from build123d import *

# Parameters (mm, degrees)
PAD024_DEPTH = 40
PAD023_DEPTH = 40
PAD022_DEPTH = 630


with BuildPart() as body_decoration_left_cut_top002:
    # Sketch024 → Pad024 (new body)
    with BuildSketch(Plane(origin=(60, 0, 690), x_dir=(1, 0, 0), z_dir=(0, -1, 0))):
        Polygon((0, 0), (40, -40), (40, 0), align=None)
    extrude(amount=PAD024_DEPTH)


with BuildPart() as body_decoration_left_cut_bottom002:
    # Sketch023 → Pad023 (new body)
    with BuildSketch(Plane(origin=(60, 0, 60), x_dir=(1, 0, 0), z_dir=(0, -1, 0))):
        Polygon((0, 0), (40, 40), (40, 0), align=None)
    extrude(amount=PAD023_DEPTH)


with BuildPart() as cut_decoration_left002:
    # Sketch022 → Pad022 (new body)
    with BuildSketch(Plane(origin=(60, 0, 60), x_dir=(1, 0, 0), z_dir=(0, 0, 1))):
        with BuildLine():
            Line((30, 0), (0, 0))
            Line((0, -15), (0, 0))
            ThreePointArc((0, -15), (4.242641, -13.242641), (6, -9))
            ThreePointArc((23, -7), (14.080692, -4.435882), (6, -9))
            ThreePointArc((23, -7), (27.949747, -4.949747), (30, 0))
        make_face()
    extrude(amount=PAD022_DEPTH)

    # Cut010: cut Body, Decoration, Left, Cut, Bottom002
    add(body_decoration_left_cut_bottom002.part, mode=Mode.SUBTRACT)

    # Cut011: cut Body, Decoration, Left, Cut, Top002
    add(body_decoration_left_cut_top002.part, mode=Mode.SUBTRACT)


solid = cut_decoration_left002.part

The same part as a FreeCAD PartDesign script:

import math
import FreeCAD as App
import Part
import Sketcher
Q = App.Units.Quantity


def add_polygon(sketch, points):
    """Adds a closed chain of lines whose ends are joined by coincident constraints."""
    first, n = sketch.GeometryCount, len(points)
    for a, b in zip(points, points[1:] + points[:1]):
        sketch.addGeometry(Part.LineSegment(App.Vector(*a, 0), App.Vector(*b, 0)), False)
    for i in range(n):
        sketch.addConstraint(Sketcher.Constraint("Coincident", first + i, 2, first + (i + 1) % n, 1))

doc = App.newDocument("Part")
params = doc.addObject("Spreadsheet::Sheet", "Params")
for row, (alias, value) in enumerate([
    ("sketch1_width", "40 mm"),
    ("pad1_length", "40 mm"),
    ("sketch2_width", "40 mm"),
    ("pad2_length", "40 mm"),
    ("sketch3_radius", "5.999999 mm"),
    ("sketch3_radius2", "11.999999 mm"),
    ("sketch3_radius3", "7.000002 mm"),
    ("sketch3_width", "30 mm"),
    ("sketch3_height", "15 mm"),
    ("pad3_length", "630 mm"),
], start=1):
    params.set(f"A{row}", alias)
    params.set(f"B{row}", "=" + value)
    params.setAlias(f"B{row}", alias)

body = doc.addObject("PartDesign::Body", "Body")

# Sketch on XZ plane
sketch1 = doc.addObject("Sketcher::SketchObject", "Sketch")
body.addObject(sketch1)
sketch1.AttachmentSupport = (doc.XZ_Plane, [""])
sketch1.MapMode = "FlatFace"
add_polygon(sketch1, [(60, 690), (100, 650), (100, 690)])  # lines 0-2
sketch1.addConstraint([
    Sketcher.Constraint("Vertical", 1),
    Sketcher.Constraint("Horizontal", 2),
    Sketcher.Constraint("Equal", 2, 1),
    Sketcher.Constraint("DistanceX", 2, 2, 2, 1, Q("40 mm")),
    Sketcher.Constraint("DistanceX", -1, 1, 0, 2, Q("100 mm")),
    Sketcher.Constraint("DistanceY", -1, 1, 0, 2, Q("650 mm")),
])
sketch1.setExpression("Constraints[6]", "Params.sketch1_width")
pad1 = doc.addObject("PartDesign::Pad", "Pad")
body.addObject(pad1)
pad1.Profile = sketch1
pad1.setExpression("Length", "Params.pad1_length")
body2 = doc.addObject("PartDesign::Body", "Body001")

# Sketch on XZ plane
sketch2 = doc.addObject("Sketcher::SketchObject", "Sketch001")
body2.addObject(sketch2)
sketch2.AttachmentSupport = (doc.getObject("XZ_Plane001"), [""])
sketch2.MapMode = "FlatFace"
add_polygon(sketch2, [(100, 100), (60, 60), (100, 60)])  # lines 0-2
sketch2.addConstraint([
    Sketcher.Constraint("Horizontal", 1),
    Sketcher.Constraint("Vertical", 2),
    Sketcher.Constraint("Equal", 1, 2),
    Sketcher.Constraint("DistanceX", 1, 1, 1, 2, Q("40 mm")),
    Sketcher.Constraint("DistanceX", -1, 1, 0, 2, Q("60 mm")),
    Sketcher.Constraint("DistanceY", -1, 1, 0, 2, Q("60 mm")),
])
sketch2.setExpression("Constraints[6]", "Params.sketch2_width")
pad2 = doc.addObject("PartDesign::Pad", "Pad001")
body2.addObject(pad2)
pad2.Profile = sketch2
pad2.setExpression("Length", "Params.pad2_length")
body3 = doc.addObject("PartDesign::Body", "Body002")

# Sketch on XY plane
sketch3 = doc.addObject("Sketcher::SketchObject", "Sketch002")
body3.addObject(sketch3)
sketch3.AttachmentSupport = (doc.getObject("XY_Plane002"), [""])
sketch3.MapMode = "FlatFace"
sketch3.AttachmentOffset = App.Placement(App.Vector(0, 0, 60), App.Rotation())
sketch3.addGeometry([
    Part.LineSegment(App.Vector(90, 0, 0), App.Vector(60, 0, 0)),  # 0
    Part.LineSegment(App.Vector(60, 0, 0), App.Vector(60, -15, 0)),  # 1
    Part.ArcOfCircle(Part.Circle(App.Vector(60, -9, 0), App.Vector(0, 0, 1), 6), math.radians(-90), math.radians(0)),  # 2
    Part.ArcOfCircle(Part.Circle(App.Vector(75, -16, 0), App.Vector(0, 0, 1), 12), math.radians(51), math.radians(142)),  # 3
    Part.ArcOfCircle(Part.Circle(App.Vector(83, 0, 0), App.Vector(0, 0, 1), 7), math.radians(-90), math.radians(0)),  # 4
], False)
sketch3.addConstraint([
    Sketcher.Constraint("Coincident", 0, 2, 1, 1),
    Sketcher.Constraint("Coincident", 1, 2, 2, 1),
    Sketcher.Constraint("Coincident", 2, 2, 3, 2),
    Sketcher.Constraint("Coincident", 3, 1, 4, 1),
    Sketcher.Constraint("Coincident", 4, 2, 0, 1),
    Sketcher.Constraint("Horizontal", 0),
    Sketcher.Constraint("Vertical", 1),
    Sketcher.Constraint("PointOnObject", 4, 3, -1),
    Sketcher.Constraint("PointOnObject", 0, 2, -1),
    Sketcher.Constraint("Vertical", 2, 3, 0, 2),
    Sketcher.Constraint("Vertical", 4, 3, 3, 1),
    Sketcher.Constraint("Radius", 2, Q("5.999999 mm")),
    Sketcher.Constraint("Radius", 3, Q("11.999999 mm")),
    Sketcher.Constraint("Radius", 4, Q("7.000002 mm")),
    Sketcher.Constraint("DistanceX", 0, 2, 0, 1, Q("30 mm")),
    Sketcher.Constraint("DistanceY", 1, 2, 1, 1, Q("15 mm")),
    Sketcher.Constraint("DistanceX", -1, 1, 2, 3, Q("60.000001 mm")),
    Sketcher.Constraint("DistanceY", 2, 2, -1, 1, Q("9 mm")),
])
sketch3.setExpression("Constraints[11]", "Params.sketch3_radius")
sketch3.setExpression("Constraints[12]", "Params.sketch3_radius2")
sketch3.setExpression("Constraints[13]", "Params.sketch3_radius3")
sketch3.setExpression("Constraints[14]", "Params.sketch3_width")
sketch3.setExpression("Constraints[15]", "Params.sketch3_height")
pad3 = doc.addObject("PartDesign::Pad", "Pad002")
body3.addObject(pad3)
pad3.Profile = sketch3
pad3.setExpression("Length", "Params.pad3_length")
doc.recompute()

boolean = doc.addObject("PartDesign::Boolean", "Boolean")
body3.addObject(boolean)
boolean.Type = "Cut"
boolean.addObjects([body2])
doc.recompute()

boolean2 = doc.addObject("PartDesign::Boolean", "Boolean001")
body3.addObject(boolean2)
boolean2.Type = "Cut"
boolean2.addObjects([body])

doc.recompute()
